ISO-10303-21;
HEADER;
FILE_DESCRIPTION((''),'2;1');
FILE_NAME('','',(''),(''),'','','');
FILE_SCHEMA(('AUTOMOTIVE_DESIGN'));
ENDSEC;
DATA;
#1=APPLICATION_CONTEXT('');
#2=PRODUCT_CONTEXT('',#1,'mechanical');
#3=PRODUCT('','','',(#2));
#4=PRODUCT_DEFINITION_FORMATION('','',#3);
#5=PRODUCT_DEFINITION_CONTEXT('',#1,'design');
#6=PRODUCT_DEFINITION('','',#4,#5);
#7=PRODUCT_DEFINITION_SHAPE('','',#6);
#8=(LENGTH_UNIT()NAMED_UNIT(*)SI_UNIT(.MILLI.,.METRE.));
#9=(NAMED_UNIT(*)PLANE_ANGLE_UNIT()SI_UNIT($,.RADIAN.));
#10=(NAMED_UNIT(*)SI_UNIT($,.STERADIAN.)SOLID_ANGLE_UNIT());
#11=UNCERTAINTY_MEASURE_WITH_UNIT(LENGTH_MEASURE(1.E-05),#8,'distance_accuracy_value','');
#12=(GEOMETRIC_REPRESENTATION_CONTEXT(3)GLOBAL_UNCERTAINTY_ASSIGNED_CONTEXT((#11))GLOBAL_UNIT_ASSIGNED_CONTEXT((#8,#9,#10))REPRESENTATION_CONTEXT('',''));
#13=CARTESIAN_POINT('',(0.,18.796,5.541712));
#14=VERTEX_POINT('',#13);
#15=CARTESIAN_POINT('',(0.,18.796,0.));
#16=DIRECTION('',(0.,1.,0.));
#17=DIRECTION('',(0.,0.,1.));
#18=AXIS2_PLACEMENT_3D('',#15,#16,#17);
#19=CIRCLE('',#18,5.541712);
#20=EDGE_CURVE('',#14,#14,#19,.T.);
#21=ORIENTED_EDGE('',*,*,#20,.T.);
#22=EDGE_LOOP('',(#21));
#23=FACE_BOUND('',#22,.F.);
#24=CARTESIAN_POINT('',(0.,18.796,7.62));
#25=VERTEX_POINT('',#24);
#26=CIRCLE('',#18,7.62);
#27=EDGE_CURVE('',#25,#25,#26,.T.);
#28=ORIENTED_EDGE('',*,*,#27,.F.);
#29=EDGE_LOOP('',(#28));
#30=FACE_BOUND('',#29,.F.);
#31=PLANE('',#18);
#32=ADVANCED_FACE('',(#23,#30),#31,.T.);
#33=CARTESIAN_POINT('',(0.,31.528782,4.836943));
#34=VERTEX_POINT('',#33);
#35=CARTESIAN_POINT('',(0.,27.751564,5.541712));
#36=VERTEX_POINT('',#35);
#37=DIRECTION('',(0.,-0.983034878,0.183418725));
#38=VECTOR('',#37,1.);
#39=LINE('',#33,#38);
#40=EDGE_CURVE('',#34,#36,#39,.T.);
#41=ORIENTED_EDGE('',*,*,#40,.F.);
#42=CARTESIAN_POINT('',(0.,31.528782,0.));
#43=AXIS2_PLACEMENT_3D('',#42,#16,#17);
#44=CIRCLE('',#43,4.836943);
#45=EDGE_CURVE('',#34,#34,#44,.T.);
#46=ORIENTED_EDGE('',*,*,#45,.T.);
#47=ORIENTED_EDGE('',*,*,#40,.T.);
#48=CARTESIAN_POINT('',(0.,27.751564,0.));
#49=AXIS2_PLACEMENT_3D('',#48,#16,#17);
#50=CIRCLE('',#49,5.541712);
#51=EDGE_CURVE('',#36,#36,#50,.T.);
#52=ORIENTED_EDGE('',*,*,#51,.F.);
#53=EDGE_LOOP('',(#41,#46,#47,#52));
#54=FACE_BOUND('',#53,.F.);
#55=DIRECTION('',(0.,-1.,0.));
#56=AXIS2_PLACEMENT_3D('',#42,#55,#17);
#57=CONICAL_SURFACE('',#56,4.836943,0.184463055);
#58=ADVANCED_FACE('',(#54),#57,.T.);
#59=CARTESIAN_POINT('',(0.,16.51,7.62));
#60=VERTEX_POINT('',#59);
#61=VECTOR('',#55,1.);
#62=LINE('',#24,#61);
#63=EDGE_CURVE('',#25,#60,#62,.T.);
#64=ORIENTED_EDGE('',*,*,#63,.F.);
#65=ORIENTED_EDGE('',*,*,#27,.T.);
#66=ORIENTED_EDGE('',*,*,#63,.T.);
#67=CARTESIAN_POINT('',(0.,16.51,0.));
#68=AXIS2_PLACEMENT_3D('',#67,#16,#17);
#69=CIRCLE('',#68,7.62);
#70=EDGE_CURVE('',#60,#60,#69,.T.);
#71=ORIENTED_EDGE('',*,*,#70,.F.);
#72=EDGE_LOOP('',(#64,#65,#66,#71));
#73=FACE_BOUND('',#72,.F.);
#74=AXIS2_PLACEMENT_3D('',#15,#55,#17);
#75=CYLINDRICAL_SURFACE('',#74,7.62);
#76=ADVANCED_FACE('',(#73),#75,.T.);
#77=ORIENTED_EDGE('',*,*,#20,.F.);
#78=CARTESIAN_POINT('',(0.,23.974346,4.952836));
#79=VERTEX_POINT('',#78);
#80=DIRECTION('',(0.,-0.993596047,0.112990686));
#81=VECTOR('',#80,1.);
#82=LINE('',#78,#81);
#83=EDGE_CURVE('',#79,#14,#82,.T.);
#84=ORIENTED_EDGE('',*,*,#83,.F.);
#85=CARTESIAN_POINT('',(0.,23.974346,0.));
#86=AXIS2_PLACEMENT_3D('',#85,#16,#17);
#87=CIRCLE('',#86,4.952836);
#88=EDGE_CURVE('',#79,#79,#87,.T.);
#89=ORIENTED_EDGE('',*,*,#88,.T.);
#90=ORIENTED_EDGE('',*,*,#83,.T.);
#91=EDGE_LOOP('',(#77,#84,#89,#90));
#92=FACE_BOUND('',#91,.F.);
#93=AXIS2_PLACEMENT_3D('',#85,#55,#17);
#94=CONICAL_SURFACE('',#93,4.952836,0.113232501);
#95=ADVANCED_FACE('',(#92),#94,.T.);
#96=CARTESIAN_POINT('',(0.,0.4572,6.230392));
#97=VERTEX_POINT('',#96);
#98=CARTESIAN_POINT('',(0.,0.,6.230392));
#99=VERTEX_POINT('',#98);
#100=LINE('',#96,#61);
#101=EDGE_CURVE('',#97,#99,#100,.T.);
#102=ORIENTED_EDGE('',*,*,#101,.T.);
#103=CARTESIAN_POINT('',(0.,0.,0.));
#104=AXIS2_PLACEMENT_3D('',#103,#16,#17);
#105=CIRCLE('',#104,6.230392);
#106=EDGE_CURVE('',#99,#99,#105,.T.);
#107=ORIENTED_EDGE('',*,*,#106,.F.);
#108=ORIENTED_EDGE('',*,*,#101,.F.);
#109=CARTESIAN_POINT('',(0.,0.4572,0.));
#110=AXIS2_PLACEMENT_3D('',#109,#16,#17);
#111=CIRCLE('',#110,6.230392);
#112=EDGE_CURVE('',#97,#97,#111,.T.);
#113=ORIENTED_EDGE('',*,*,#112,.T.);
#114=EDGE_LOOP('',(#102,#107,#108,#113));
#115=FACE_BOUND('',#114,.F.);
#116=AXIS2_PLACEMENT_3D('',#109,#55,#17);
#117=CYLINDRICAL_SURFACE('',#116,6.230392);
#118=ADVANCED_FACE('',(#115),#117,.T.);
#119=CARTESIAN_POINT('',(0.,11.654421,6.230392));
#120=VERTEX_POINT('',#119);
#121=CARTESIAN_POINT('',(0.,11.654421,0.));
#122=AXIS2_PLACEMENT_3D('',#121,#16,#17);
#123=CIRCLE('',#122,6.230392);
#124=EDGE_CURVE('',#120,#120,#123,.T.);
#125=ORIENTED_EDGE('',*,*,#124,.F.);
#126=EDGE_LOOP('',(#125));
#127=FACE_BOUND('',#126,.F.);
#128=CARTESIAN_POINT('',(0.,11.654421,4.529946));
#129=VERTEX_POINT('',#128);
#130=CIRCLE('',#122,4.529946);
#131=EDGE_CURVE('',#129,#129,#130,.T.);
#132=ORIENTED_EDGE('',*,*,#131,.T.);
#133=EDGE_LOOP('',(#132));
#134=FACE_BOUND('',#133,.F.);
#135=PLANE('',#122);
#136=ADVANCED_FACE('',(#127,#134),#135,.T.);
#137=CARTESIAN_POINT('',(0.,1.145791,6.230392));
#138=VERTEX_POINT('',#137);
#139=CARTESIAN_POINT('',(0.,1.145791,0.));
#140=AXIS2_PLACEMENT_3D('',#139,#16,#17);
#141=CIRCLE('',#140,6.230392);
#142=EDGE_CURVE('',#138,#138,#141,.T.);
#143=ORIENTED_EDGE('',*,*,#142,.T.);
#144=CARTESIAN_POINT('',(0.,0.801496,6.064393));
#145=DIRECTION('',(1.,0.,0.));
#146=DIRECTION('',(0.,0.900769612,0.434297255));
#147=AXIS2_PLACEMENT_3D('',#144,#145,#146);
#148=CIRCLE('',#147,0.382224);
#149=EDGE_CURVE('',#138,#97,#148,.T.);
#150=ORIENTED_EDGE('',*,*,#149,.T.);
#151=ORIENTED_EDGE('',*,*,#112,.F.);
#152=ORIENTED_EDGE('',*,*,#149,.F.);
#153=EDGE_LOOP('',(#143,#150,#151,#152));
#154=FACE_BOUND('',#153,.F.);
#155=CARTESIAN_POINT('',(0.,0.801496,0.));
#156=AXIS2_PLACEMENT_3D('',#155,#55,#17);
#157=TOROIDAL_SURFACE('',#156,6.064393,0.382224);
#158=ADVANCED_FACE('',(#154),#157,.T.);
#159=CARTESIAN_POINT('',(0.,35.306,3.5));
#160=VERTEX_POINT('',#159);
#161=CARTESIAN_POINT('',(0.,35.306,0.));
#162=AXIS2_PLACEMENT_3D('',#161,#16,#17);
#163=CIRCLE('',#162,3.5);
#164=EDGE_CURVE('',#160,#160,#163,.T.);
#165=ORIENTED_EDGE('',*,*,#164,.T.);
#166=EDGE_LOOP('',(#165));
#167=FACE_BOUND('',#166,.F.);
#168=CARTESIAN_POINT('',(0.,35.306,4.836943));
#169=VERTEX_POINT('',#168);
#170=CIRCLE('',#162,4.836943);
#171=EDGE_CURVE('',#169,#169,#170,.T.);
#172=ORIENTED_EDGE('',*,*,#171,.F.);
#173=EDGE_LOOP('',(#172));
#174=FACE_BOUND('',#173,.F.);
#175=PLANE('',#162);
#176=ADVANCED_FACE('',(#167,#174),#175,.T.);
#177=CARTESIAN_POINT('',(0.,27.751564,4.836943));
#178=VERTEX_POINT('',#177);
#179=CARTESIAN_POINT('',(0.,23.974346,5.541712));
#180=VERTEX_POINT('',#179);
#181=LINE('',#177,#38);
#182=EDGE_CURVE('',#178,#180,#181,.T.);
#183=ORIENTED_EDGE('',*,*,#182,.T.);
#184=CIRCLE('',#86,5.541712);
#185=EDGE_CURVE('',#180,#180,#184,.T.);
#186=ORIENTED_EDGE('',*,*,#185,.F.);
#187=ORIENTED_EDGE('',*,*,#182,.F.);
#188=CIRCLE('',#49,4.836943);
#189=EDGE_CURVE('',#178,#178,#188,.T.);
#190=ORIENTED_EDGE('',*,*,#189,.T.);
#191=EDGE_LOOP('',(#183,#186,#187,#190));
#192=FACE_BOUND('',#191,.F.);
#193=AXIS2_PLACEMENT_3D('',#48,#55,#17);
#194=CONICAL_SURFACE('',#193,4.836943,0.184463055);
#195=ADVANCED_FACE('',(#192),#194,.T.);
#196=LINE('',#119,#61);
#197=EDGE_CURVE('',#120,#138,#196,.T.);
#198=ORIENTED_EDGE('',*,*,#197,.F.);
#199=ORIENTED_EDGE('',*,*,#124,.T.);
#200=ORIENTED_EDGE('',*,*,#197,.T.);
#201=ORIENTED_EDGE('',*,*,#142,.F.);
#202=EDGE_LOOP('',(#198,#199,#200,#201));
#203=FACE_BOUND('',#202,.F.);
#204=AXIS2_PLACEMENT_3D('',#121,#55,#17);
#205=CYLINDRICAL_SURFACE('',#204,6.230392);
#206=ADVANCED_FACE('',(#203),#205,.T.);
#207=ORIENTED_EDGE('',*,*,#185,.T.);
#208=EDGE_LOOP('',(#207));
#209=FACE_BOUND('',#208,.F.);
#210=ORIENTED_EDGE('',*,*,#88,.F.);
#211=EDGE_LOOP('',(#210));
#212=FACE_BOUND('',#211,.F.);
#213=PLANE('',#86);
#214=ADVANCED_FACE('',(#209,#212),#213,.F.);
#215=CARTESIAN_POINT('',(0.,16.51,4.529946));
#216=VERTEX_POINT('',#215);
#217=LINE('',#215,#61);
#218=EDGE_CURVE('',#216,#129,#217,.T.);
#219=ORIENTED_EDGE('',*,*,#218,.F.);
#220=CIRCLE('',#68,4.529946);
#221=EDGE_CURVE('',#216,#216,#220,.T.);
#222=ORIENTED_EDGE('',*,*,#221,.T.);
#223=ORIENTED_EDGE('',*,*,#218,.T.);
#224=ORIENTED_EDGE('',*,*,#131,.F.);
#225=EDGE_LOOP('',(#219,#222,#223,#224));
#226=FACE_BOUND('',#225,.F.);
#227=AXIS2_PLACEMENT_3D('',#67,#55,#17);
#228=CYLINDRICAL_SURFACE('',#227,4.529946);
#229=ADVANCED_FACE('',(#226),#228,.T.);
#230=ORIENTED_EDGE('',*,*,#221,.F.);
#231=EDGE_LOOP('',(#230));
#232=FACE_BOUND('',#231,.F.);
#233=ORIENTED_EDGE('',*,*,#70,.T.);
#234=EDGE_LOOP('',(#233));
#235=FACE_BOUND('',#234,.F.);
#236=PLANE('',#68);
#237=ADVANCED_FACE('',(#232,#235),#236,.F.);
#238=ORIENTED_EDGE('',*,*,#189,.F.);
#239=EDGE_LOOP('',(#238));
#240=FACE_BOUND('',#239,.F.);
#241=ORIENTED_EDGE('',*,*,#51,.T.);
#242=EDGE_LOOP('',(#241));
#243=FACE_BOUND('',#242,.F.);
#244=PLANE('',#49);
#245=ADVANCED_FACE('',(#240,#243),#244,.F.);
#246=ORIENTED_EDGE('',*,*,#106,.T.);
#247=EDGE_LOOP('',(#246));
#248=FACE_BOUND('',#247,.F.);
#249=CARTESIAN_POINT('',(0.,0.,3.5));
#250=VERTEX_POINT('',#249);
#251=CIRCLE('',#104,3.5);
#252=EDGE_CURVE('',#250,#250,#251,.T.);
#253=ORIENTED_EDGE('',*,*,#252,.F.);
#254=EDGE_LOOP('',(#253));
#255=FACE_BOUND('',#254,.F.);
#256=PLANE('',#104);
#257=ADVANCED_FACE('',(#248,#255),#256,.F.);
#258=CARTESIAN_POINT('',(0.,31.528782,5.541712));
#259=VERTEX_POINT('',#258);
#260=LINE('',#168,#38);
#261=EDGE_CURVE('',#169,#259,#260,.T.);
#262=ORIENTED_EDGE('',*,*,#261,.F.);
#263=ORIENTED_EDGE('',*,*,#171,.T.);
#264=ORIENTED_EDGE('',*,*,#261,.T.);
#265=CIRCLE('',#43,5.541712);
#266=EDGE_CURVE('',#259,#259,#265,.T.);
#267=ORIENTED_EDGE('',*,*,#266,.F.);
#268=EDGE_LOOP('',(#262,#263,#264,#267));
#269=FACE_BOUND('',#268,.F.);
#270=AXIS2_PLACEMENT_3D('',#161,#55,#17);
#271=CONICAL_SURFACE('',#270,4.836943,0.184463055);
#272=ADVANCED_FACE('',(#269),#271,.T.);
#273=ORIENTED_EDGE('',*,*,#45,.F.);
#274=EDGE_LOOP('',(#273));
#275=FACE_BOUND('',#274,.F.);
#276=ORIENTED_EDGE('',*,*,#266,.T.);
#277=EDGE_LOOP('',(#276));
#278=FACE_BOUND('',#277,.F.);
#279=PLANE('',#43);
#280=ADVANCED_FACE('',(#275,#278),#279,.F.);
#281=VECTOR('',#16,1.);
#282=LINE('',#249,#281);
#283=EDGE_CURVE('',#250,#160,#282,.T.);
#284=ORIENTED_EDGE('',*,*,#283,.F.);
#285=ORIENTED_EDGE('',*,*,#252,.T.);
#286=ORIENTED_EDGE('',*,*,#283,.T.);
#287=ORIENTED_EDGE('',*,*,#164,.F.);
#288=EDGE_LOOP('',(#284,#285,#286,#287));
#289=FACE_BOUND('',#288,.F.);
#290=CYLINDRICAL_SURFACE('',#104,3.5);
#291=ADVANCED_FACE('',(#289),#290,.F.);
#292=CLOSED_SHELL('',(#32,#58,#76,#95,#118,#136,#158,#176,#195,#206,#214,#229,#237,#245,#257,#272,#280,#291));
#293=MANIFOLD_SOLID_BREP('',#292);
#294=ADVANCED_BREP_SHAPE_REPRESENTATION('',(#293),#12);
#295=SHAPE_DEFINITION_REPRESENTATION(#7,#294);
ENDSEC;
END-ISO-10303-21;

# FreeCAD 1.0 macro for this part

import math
import FreeCAD as App
import Part
import Sketcher
Q = App.Units.Quantity

doc = App.newDocument("Part")
body = doc.addObject("PartDesign::Body", "Body")

# Sketch on YZ plane
sketch1 = doc.addObject("Sketcher::SketchObject", "Sketch")
body.addObject(sketch1)
sketch1.AttachmentSupport = (doc.YZ_Plane, [""])
sketch1.MapMode = "FlatFace"
sketch1.addGeometry(Part.LineSegment(App.Vector(0.4572, 6.230392, 0), App.Vector(0, 6.230392, 0)), False)
sketch1.addGeometry(Part.LineSegment(App.Vector(0, 6.230392, 0), App.Vector(0, 3.5, 0)), False)
sketch1.addGeometry(Part.LineSegment(App.Vector(0, 3.5, 0), App.Vector(35.306, 3.5, 0)), False)
sketch1.addGeometry(Part.LineSegment(App.Vector(35.306, 3.5, 0), App.Vector(35.306, 4.836943, 0)), False)
sketch1.addGeometry(Part.LineSegment(App.Vector(35.306, 4.836943, 0), App.Vector(31.528782, 5.541712, 0)), False)
sketch1.addGeometry(Part.LineSegment(App.Vector(31.528782, 5.541712, 0), App.Vector(31.528782, 4.836943, 0)), False)
sketch1.addGeometry(Part.LineSegment(App.Vector(31.528782, 4.836943, 0), App.Vector(27.751564, 5.541712, 0)), False)
sketch1.addGeometry(Part.LineSegment(App.Vector(27.751564, 5.541712, 0), App.Vector(27.751564, 4.836943, 0)), False)
sketch1.addGeometry(Part.LineSegment(App.Vector(27.751564, 4.836943, 0), App.Vector(23.974346, 5.541712, 0)), False)
sketch1.addGeometry(Part.LineSegment(App.Vector(23.974346, 5.541712, 0), App.Vector(23.974346, 4.952836, 0)), False)
sketch1.addGeometry(Part.LineSegment(App.Vector(23.974346, 4.952836, 0), App.Vector(18.796, 5.541712, 0)), False)
sketch1.addGeometry(Part.LineSegment(App.Vector(18.796, 5.541712, 0), App.Vector(18.796, 7.62, 0)), False)
sketch1.addGeometry(Part.LineSegment(App.Vector(18.796, 7.62, 0), App.Vector(16.51, 7.62, 0)), False)
sketch1.addGeometry(Part.LineSegment(App.Vector(16.51, 7.62, 0), App.Vector(16.51, 4.529946, 0)), False)
sketch1.addGeometry(Part.LineSegment(App.Vector(16.51, 4.529946, 0), App.Vector(11.654421, 4.529946, 0)), False)
sketch1.addGeometry(Part.LineSegment(App.Vector(11.654421, 4.529946, 0), App.Vector(11.654421, 6.230392, 0)), False)
sketch1.addGeometry(Part.LineSegment(App.Vector(11.654421, 6.230392, 0), App.Vector(1.145791, 6.230392, 0)), False)
sketch1.addGeometry(Part.ArcOfCircle(Part.Circle(App.Vector(0.801496, 6.064393, 0), App.Vector(0, 0, 1), 0.382224), math.radians(25.740586), math.radians(154.259414)), False)
sketch1.addConstraint(Sketcher.Constraint("Coincident", 0, 2, 1, 1))
sketch1.addConstraint(Sketcher.Constraint("Coincident", 1, 2, 2, 1))
sketch1.addConstraint(Sketcher.Constraint("Coincident", 2, 2, 3, 1))
sketch1.addConstraint(Sketcher.Constraint("Coincident", 3, 2, 4, 1))
sketch1.addConstraint(Sketcher.Constraint("Coincident", 4, 2, 5, 1))
sketch1.addConstraint(Sketcher.Constraint("Coincident", 5, 2, 6, 1))
sketch1.addConstraint(Sketcher.Constraint("Coincident", 6, 2, 7, 1))
sketch1.addConstraint(Sketcher.Constraint("Coincident", 7, 2, 8, 1))
sketch1.addConstraint(Sketcher.Constraint("Coincident", 8, 2, 9, 1))
sketch1.addConstraint(Sketcher.Constraint("Coincident", 9, 2, 10, 1))
sketch1.addConstraint(Sketcher.Constraint("Coincident", 10, 2, 11, 1))
sketch1.addConstraint(Sketcher.Constraint("Coincident", 11, 2, 12, 1))
sketch1.addConstraint(Sketcher.Constraint("Coincident", 12, 2, 13, 1))
sketch1.addConstraint(Sketcher.Constraint("Coincident", 13, 2, 14, 1))
sketch1.addConstraint(Sketcher.Constraint("Coincident", 14, 2, 15, 1))
sketch1.addConstraint(Sketcher.Constraint("Coincident", 15, 2, 16, 1))
sketch1.addConstraint(Sketcher.Constraint("Coincident", 16, 2, 17, 1))
sketch1.addConstraint(Sketcher.Constraint("Coincident", 17, 2, 0, 1))
sketch1.addConstraint(Sketcher.Constraint("Horizontal", 0))
sketch1.addConstraint(Sketcher.Constraint("Vertical", 1))
sketch1.addConstraint(Sketcher.Constraint("Horizontal", 2))
sketch1.addConstraint(Sketcher.Constraint("Vertical", 3))
sketch1.addConstraint(Sketcher.Constraint("Vertical", 5))
sketch1.addConstraint(Sketcher.Constraint("Vertical", 7))
sketch1.addConstraint(Sketcher.Constraint("Vertical", 9))
sketch1.addConstraint(Sketcher.Constraint("Vertical", 11))
sketch1.addConstraint(Sketcher.Constraint("Horizontal", 12))
sketch1.addConstraint(Sketcher.Constraint("Vertical", 13))
sketch1.addConstraint(Sketcher.Constraint("Horizontal", 14))
sketch1.addConstraint(Sketcher.Constraint("Vertical", 15))
sketch1.addConstraint(Sketcher.Constraint("Horizontal", 16))
sketch1.addConstraint(Sketcher.Constraint("PointOnObject", 0, 2, -2))
sketch1.addConstraint(Sketcher.Constraint("Parallel", 4, 6))
sketch1.addConstraint(Sketcher.Constraint("Parallel", 6, 8))
sketch1.addConstraint(Sketcher.Constraint("Horizontal", 3, 2, 5, 2))
sketch1.addConstraint(Sketcher.Constraint("Horizontal", 4, 2, 6, 2))
sketch1.addConstraint(Sketcher.Constraint("Horizontal", 5, 2, 7, 2))
sketch1.addConstraint(Sketcher.Constraint("Horizontal", 6, 2, 8, 2))
sketch1.addConstraint(Sketcher.Constraint("Horizontal", 8, 2, 10, 2))
sketch1.addConstraint(Sketcher.Constraint("Horizontal", 0, 2, 15, 2))
sketch1.addConstraint(Sketcher.Constraint("DistanceX", 2, 1, 2, 2, Q("1.39 in")))
sketch1.addConstraint(Sketcher.Constraint("DistanceX", 12, 2, 12, 1, Q("0.09 in")))
sketch1.addConstraint(Sketcher.Constraint("DistanceY", -1, 1, 11, 2, Q("0.3 in")))
sketch1.addConstraint(Sketcher.Constraint("DistanceX", 0, 2, 0, 1, Q("0.018 in")))
sketch1.addConstraint(Sketcher.Constraint("DistanceX", -1, 1, 10, 2, Q("0.74 in")))
sketch1.addConstraint(Sketcher.Constraint("Radius", 17, 0.382224))
sketch1.addConstraint(Sketcher.Constraint("DistanceX", 14, 2, 14, 1, 4.855579))
sketch1.addConstraint(Sketcher.Constraint("DistanceX", 16, 2, 16, 1, 10.50863))
sketch1.addConstraint(Sketcher.Constraint("DistanceY", 5, 2, 5, 1, 0.704769))
sketch1.addConstraint(Sketcher.Constraint("DistanceY", -1, 1, 1, 2, 3.5))
sketch1.addConstraint(Sketcher.Constraint("Distance", 10, 5.211722))
sketch1.addConstraint(Sketcher.Constraint("DistanceY", 1, 2, 1, 1, 2.730392))
sketch1.addConstraint(Sketcher.Constraint("DistanceY", 3, 1, 3, 2, 1.336943))
sketch1.addConstraint(Sketcher.Constraint("DistanceY", 9, 2, 9, 1, 0.588876))
sketch1.addConstraint(Sketcher.Constraint("DistanceY", 13, 2, 13, 1, 3.090054))
revolution = doc.addObject("PartDesign::Revolution", "Revolution")
body.addObject(revolution)
revolution.Profile = sketch1
revolution.ReferenceAxis = (sketch1, ["H_Axis"])
revolution.Angle = 360

doc.recompute()
